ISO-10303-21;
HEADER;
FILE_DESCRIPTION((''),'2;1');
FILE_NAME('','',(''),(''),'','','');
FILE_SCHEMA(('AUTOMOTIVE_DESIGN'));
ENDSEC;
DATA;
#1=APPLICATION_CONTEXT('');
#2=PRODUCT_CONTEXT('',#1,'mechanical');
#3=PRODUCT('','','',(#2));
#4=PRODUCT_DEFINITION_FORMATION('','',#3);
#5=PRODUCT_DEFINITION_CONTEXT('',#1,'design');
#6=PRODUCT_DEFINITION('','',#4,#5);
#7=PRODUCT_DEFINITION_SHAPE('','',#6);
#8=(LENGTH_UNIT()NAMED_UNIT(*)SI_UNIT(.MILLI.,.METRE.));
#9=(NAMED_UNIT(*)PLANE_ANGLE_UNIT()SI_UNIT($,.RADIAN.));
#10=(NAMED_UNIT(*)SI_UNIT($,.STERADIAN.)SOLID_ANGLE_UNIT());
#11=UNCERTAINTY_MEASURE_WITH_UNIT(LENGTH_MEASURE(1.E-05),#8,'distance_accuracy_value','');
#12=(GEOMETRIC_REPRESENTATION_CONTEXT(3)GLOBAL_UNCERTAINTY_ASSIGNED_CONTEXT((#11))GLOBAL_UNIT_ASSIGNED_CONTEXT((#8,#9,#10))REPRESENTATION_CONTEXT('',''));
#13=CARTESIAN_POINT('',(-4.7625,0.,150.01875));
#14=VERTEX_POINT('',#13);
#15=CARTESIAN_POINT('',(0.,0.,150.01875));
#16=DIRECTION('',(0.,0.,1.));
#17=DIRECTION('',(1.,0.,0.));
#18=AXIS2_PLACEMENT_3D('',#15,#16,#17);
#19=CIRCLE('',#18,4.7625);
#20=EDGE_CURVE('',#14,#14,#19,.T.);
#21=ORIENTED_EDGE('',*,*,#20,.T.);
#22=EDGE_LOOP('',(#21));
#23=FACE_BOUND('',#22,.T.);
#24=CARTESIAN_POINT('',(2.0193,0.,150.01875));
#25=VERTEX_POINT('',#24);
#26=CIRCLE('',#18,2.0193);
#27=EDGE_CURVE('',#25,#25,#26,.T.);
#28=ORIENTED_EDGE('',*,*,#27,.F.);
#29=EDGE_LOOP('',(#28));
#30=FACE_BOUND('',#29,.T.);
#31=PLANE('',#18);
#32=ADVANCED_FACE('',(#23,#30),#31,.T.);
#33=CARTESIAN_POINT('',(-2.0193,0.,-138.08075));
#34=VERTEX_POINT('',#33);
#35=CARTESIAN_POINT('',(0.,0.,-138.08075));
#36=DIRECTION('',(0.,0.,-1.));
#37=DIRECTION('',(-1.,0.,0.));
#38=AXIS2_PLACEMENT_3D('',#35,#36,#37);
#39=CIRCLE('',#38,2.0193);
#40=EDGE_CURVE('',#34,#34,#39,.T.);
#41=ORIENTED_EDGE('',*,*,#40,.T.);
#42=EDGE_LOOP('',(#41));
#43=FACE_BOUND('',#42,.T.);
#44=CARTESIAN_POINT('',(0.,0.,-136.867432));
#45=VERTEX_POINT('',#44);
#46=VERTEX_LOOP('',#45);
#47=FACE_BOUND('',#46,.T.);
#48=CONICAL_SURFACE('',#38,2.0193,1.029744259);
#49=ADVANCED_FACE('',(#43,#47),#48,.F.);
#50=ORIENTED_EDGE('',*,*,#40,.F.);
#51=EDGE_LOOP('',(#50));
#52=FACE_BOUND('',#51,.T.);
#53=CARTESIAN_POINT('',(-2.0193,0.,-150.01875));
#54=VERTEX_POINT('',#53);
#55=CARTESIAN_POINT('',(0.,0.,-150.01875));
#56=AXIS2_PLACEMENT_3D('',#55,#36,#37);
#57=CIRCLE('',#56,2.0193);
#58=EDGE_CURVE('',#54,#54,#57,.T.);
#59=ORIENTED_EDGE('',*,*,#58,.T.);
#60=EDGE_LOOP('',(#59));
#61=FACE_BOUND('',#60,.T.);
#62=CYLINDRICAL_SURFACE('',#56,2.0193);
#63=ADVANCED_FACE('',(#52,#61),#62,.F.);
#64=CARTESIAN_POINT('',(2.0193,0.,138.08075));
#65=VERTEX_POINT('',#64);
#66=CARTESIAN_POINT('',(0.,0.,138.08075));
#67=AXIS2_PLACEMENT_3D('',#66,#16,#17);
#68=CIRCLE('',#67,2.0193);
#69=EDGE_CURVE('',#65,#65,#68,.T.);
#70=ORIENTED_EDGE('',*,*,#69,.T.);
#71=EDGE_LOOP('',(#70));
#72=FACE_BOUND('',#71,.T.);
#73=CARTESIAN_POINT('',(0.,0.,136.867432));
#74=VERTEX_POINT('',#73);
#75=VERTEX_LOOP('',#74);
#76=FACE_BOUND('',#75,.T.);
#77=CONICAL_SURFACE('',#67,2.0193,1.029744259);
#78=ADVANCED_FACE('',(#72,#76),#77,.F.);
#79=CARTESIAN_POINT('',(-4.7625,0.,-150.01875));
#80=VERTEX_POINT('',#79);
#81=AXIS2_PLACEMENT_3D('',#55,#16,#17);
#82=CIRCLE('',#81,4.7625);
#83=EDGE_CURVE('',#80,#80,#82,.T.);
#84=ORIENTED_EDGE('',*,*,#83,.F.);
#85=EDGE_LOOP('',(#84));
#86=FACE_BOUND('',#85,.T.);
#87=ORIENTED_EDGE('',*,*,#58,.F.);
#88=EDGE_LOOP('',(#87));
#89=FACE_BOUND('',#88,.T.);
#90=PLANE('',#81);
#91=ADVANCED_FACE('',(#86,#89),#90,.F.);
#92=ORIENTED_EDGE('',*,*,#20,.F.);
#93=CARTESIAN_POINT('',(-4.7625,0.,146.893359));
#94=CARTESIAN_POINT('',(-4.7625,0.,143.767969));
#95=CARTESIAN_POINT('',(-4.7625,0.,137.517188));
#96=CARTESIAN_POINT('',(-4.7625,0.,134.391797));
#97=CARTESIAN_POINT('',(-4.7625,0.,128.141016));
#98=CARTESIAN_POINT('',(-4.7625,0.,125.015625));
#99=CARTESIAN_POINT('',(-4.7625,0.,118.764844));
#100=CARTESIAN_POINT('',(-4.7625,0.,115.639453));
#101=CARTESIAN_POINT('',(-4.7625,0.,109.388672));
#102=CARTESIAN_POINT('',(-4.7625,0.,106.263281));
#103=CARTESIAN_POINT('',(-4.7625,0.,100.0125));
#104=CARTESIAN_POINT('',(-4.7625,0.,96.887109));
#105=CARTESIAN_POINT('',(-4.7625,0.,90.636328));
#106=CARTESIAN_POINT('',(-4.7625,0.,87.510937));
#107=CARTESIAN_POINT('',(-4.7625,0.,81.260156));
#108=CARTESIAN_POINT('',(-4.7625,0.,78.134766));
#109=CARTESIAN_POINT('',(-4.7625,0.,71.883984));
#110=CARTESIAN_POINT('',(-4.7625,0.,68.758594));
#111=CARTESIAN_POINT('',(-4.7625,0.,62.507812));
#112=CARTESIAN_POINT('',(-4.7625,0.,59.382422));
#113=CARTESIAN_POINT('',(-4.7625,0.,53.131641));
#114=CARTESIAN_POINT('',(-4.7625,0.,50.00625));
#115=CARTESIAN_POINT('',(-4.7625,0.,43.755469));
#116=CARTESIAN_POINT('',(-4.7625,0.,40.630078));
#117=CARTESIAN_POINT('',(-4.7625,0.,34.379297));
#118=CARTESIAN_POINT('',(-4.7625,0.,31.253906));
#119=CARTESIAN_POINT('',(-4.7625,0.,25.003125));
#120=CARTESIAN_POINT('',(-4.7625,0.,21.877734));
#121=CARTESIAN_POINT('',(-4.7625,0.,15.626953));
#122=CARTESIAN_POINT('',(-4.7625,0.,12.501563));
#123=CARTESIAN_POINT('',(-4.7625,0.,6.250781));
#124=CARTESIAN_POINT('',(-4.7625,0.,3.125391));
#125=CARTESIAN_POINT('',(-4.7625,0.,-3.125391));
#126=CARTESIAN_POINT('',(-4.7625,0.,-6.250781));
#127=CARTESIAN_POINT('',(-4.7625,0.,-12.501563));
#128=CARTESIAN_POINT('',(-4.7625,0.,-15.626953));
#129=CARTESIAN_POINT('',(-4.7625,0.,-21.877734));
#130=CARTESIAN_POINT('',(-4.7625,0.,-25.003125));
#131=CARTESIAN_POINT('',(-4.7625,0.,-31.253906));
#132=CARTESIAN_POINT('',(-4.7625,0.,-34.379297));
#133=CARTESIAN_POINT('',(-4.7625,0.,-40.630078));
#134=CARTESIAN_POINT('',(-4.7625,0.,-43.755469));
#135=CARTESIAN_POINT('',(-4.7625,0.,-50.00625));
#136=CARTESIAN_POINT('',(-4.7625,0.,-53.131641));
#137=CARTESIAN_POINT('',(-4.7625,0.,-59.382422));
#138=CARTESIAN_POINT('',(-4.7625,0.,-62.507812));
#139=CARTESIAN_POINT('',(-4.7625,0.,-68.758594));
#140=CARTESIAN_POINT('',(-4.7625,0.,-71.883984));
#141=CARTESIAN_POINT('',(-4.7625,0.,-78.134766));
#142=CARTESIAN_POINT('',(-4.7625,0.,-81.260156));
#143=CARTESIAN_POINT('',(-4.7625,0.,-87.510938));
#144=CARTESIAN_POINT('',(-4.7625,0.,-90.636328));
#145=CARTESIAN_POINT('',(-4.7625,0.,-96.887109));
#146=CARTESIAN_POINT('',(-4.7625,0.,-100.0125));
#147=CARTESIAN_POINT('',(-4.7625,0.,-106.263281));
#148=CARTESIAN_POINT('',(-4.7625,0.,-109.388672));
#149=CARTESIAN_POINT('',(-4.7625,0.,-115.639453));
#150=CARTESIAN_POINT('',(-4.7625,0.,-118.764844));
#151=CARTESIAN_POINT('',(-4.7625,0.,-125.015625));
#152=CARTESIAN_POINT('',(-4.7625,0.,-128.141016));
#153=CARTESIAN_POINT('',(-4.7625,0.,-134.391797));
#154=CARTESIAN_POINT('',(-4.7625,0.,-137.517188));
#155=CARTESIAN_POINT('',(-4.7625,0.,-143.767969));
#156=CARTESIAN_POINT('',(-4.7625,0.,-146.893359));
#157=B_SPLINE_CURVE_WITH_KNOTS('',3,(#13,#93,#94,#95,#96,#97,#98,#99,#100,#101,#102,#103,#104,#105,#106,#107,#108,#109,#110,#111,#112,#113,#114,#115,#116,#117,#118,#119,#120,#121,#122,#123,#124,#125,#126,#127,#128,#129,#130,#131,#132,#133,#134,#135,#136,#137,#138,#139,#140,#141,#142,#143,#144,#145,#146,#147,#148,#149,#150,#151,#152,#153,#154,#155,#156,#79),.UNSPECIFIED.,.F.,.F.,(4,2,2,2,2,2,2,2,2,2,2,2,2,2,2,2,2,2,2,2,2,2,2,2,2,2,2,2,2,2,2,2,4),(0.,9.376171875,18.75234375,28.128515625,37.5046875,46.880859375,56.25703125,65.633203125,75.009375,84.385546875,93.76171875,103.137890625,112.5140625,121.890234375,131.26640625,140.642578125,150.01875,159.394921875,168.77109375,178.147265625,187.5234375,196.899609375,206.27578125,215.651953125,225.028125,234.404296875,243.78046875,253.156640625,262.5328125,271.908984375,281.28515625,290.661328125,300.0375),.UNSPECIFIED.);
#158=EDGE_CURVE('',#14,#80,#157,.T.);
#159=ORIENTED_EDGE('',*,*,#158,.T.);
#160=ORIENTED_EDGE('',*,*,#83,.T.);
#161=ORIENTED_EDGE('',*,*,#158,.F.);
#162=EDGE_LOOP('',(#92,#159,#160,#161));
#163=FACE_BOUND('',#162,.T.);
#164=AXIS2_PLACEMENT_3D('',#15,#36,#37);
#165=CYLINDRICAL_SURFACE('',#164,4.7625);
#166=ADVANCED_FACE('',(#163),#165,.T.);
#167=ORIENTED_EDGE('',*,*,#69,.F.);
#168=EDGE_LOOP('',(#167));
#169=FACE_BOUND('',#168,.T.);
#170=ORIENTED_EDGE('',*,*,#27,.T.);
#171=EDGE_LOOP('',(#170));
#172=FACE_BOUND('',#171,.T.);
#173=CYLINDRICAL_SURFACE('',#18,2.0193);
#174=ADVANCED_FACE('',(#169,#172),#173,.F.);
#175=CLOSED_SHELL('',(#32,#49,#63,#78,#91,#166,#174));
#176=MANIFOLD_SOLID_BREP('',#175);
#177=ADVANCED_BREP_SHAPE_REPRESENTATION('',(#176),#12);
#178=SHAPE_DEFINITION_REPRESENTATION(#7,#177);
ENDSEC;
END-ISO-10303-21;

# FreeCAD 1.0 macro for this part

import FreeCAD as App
import Part
import Sketcher

V = App.Vector
Q = App.Units.Quantity

doc = App.newDocument("Part")
body = doc.addObject("PartDesign::Body", "Body")

sketch1 = doc.addObject("Sketcher::SketchObject", "Sketch")
body.addObject(sketch1)
sketch1.AttachmentSupport = (doc.XY_Plane, [""])
sketch1.MapMode = "FlatFace"
sketch1.addGeometry(Part.Circle(V(0, 0, 0), V(0, 0, 1), 4.7625), False)
sketch1.addConstraint([
    Sketcher.Constraint("Coincident", 0, 3, -1, 1),
    Sketcher.Constraint("Diameter", 0, Q("0.375 in")),
])
pad1 = doc.addObject("PartDesign::Pad", "Pad")
body.addObject(pad1)
pad1.Profile = sketch1
pad1.Length = Q("11.8125 in")
pad1.Midplane = True

sketch2 = doc.addObject("Sketcher::SketchObject", "Sketch001")
body.addObject(sketch2)
sketch2.AttachmentSupport = (doc.XY_Plane, [""])
sketch2.MapMode = "FlatFace"
sketch2.AttachmentOffset = App.Placement(V(0, 0, 5.90625 * 25.4), App.Rotation())
sketch2.addGeometry(Part.Circle(V(0, 0, 0), V(0, 0, 1), 2.0193), False)
sketch2.addConstraint([
    Sketcher.Constraint("Coincident", 0, 3, -1, 1),
    Sketcher.Constraint("Diameter", 0, Q("0.159 in")),
])
doc.recompute()
hole = doc.addObject("PartDesign::Hole", "Hole")
body.addObject(hole)
hole.Profile = sketch2
hole.ThreadType = "None"
hole.Diameter = Q("0.159 in")
hole.DepthType = "Dimension"
hole.Depth = Q("0.47 in")
hole.DrillPoint = "Angled"
hole.DrillPointAngle = 118

sketch3 = doc.addObject("Sketcher::SketchObject", "Sketch002")
body.addObject(sketch3)
sketch3.AttachmentSupport = (doc.XY_Plane, [""])
sketch3.MapMode = "FlatFace"
sketch3.AttachmentOffset = App.Placement(V(0, 0, -5.90625 * 25.4), App.Rotation())
sketch3.addGeometry(Part.Circle(V(0, 0, 0), V(0, 0, 1), 2.0193), False)
sketch3.addConstraint([
    Sketcher.Constraint("Coincident", 0, 3, -1, 1),
    Sketcher.Constraint("Diameter", 0, Q("0.159 in")),
])
doc.recompute()
hole2 = doc.addObject("PartDesign::Hole", "Hole001")
body.addObject(hole2)
hole2.Profile = sketch3
hole2.ThreadType = "None"
hole2.Diameter = Q("0.159 in")
hole2.DepthType = "Dimension"
hole2.Depth = Q("0.47 in")
hole2.DrillPoint = "Angled"
hole2.DrillPointAngle = 118
hole2.Reversed = True

doc.recompute()
